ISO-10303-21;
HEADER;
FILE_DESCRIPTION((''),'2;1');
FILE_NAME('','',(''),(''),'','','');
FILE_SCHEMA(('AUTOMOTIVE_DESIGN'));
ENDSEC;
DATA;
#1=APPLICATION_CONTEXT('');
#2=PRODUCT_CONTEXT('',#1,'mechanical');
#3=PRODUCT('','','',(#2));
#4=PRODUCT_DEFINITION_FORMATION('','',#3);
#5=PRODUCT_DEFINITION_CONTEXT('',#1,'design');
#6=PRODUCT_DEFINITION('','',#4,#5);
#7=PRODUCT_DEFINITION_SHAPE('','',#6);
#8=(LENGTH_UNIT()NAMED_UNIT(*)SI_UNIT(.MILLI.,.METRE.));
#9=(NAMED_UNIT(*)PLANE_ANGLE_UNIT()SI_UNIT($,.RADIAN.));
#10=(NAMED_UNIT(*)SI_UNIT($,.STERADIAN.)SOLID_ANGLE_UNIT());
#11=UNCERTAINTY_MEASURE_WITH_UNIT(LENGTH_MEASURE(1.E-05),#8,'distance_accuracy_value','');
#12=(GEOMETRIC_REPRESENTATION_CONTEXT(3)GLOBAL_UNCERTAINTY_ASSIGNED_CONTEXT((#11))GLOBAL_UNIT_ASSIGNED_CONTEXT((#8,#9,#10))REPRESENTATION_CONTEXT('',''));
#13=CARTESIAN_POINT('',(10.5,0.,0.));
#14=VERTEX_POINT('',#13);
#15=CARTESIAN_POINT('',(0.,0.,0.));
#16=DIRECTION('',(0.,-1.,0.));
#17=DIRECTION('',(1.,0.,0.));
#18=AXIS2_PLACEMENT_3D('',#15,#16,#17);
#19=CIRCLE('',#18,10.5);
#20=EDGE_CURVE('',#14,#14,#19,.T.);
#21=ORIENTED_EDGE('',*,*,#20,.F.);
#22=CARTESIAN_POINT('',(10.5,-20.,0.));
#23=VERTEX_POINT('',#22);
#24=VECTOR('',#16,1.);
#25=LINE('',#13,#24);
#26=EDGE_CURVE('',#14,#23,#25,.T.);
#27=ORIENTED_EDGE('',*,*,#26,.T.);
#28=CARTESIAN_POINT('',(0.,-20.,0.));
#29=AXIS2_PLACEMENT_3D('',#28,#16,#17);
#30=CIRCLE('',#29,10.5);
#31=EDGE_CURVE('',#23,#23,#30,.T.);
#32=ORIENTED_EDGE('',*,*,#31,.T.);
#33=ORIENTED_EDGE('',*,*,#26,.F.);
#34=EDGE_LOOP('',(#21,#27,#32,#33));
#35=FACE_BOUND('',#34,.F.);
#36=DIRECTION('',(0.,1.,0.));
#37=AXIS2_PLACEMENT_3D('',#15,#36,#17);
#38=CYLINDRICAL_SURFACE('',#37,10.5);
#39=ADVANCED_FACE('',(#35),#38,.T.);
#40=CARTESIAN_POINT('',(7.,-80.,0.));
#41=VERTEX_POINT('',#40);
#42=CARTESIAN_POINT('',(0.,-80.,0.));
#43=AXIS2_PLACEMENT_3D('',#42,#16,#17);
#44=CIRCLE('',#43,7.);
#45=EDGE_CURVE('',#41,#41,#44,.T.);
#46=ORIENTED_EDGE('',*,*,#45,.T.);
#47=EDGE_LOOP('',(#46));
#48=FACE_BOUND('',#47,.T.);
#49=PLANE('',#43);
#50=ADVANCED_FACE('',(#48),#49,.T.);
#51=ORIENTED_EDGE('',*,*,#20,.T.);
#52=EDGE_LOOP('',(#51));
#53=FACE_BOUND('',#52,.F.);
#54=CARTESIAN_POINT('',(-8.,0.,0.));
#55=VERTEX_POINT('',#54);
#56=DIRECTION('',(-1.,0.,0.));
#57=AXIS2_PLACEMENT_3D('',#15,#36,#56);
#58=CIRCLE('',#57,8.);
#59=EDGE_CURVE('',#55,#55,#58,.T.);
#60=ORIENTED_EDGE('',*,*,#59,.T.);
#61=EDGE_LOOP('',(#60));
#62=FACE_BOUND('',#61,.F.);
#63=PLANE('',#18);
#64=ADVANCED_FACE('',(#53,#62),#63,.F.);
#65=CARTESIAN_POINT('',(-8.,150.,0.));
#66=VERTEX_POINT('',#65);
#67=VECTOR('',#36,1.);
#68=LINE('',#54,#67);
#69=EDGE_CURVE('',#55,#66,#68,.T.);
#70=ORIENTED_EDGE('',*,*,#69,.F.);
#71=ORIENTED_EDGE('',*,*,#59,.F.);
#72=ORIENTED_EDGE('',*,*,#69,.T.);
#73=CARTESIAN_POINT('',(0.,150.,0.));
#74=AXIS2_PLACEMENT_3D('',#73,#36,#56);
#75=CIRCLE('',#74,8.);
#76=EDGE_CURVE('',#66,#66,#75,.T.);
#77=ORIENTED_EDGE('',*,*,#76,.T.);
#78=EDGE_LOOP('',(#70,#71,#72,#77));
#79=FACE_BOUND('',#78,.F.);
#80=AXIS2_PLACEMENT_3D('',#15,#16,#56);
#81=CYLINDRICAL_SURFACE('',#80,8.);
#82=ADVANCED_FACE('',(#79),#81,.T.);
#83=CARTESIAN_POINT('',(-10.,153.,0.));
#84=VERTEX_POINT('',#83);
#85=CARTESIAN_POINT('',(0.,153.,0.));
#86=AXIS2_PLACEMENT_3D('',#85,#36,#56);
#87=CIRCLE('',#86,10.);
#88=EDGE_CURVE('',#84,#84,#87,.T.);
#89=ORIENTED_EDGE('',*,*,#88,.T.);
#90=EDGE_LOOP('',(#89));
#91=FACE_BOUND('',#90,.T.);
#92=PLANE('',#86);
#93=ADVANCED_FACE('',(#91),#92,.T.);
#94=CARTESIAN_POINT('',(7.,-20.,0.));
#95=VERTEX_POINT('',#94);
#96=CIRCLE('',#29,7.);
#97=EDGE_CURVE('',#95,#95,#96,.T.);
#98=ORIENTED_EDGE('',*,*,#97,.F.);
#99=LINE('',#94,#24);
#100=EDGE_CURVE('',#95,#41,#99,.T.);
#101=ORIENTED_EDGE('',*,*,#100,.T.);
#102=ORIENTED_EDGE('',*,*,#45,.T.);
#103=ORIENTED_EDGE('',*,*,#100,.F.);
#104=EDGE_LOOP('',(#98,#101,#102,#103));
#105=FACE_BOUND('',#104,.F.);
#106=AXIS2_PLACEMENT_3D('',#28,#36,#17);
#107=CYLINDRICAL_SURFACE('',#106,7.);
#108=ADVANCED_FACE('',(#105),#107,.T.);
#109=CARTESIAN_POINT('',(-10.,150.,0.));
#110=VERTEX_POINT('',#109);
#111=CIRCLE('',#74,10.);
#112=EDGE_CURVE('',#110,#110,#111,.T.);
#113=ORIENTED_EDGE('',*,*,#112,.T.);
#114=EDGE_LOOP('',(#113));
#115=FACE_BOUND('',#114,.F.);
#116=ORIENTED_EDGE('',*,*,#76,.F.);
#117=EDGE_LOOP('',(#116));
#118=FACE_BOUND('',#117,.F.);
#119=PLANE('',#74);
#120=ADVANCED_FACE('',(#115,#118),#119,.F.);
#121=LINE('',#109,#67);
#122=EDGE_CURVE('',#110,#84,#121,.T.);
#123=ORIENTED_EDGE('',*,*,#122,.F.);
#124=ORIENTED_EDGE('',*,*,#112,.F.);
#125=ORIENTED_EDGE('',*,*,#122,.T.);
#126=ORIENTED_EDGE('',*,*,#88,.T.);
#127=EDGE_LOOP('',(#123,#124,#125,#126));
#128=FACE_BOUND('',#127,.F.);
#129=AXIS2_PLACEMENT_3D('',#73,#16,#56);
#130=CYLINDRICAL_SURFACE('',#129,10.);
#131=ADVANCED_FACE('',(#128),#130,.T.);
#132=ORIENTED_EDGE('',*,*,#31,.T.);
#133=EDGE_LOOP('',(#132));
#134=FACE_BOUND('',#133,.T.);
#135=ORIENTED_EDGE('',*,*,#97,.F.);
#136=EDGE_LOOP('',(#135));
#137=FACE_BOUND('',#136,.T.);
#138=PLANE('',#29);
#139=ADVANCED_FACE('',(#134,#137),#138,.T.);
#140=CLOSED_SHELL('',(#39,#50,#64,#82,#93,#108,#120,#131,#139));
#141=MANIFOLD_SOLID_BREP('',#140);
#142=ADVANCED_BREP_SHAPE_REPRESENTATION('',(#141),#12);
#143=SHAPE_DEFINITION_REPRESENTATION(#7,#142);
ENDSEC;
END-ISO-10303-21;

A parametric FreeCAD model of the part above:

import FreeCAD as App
import Part
import Sketcher
Q = App.Units.Quantity

doc = App.newDocument("Part")
body = doc.addObject("PartDesign::Body", "Body")

sketch1 = doc.addObject("Sketcher::SketchObject", "Sketch")
body.addObject(sketch1)
sketch1.AttachmentSupport = (doc.XZ_Plane, [""])
sketch1.MapMode = "FlatFace"
sketch1.addGeometry(Part.Circle(App.Vector(0, 0, 0), App.Vector(0, 0, 1), 10), False)
sketch1.addConstraint(Sketcher.Constraint("Coincident", 0, 3, -1, 1))
sketch1.addConstraint(Sketcher.Constraint("Diameter", 0, Q("21 mm")))
pad1 = doc.addObject("PartDesign::Pad", "Pad")
body.addObject(pad1)
pad1.Profile = sketch1
pad1.Length = 20

sketch2 = doc.addObject("Sketcher::SketchObject", "Sketch001")
body.addObject(sketch2)
sketch2.AttachmentSupport = (doc.XZ_Plane, [""])
sketch2.MapMode = "FlatFace"
sketch2.AttachmentOffset = App.Placement(App.Vector(0, 0, 20), App.Rotation())
sketch2.addGeometry(Part.Circle(App.Vector(0, 0, 0), App.Vector(0, 0, 1), 7), False)
sketch2.addConstraint(Sketcher.Constraint("Coincident", 0, 3, -1, 1))
sketch2.addConstraint(Sketcher.Constraint("Diameter", 0, Q("14 mm")))
pad2 = doc.addObject("PartDesign::Pad", "Pad001")
body.addObject(pad2)
pad2.Profile = sketch2
pad2.Length = 60

sketch3 = doc.addObject("Sketcher::SketchObject", "Sketch002")
body.addObject(sketch3)
sketch3.AttachmentSupport = (doc.XZ_Plane, [""])
sketch3.MapMode = "FlatFace"
sketch3.addGeometry(Part.Circle(App.Vector(0, 0, 0), App.Vector(0, 0, 1), 8), False)
sketch3.addConstraint(Sketcher.Constraint("Coincident", 0, 3, -1, 1))
sketch3.addConstraint(Sketcher.Constraint("Diameter", 0, Q("16 mm")))
pad3 = doc.addObject("PartDesign::Pad", "Pad002")
body.addObject(pad3)
pad3.Profile = sketch3
pad3.Length = 150
pad3.Reversed = True

sketch4 = doc.addObject("Sketcher::SketchObject", "Sketch003")
body.addObject(sketch4)
sketch4.AttachmentSupport = (doc.XZ_Plane, [""])
sketch4.MapMode = "FlatFace"
sketch4.AttachmentOffset = App.Placement(App.Vector(0, 0, -150), App.Rotation())
sketch4.addGeometry(Part.Circle(App.Vector(0, 0, 0), App.Vector(0, 0, 1), 10), False)
sketch4.addConstraint(Sketcher.Constraint("Coincident", 0, 3, -1, 1))
sketch4.addConstraint(Sketcher.Constraint("Diameter", 0, Q("20 mm")))
pad4 = doc.addObject("PartDesign::Pad", "Pad003")
body.addObject(pad4)
pad4.Profile = sketch4
pad4.Length = 3
pad4.Reversed = True

doc.recompute()
